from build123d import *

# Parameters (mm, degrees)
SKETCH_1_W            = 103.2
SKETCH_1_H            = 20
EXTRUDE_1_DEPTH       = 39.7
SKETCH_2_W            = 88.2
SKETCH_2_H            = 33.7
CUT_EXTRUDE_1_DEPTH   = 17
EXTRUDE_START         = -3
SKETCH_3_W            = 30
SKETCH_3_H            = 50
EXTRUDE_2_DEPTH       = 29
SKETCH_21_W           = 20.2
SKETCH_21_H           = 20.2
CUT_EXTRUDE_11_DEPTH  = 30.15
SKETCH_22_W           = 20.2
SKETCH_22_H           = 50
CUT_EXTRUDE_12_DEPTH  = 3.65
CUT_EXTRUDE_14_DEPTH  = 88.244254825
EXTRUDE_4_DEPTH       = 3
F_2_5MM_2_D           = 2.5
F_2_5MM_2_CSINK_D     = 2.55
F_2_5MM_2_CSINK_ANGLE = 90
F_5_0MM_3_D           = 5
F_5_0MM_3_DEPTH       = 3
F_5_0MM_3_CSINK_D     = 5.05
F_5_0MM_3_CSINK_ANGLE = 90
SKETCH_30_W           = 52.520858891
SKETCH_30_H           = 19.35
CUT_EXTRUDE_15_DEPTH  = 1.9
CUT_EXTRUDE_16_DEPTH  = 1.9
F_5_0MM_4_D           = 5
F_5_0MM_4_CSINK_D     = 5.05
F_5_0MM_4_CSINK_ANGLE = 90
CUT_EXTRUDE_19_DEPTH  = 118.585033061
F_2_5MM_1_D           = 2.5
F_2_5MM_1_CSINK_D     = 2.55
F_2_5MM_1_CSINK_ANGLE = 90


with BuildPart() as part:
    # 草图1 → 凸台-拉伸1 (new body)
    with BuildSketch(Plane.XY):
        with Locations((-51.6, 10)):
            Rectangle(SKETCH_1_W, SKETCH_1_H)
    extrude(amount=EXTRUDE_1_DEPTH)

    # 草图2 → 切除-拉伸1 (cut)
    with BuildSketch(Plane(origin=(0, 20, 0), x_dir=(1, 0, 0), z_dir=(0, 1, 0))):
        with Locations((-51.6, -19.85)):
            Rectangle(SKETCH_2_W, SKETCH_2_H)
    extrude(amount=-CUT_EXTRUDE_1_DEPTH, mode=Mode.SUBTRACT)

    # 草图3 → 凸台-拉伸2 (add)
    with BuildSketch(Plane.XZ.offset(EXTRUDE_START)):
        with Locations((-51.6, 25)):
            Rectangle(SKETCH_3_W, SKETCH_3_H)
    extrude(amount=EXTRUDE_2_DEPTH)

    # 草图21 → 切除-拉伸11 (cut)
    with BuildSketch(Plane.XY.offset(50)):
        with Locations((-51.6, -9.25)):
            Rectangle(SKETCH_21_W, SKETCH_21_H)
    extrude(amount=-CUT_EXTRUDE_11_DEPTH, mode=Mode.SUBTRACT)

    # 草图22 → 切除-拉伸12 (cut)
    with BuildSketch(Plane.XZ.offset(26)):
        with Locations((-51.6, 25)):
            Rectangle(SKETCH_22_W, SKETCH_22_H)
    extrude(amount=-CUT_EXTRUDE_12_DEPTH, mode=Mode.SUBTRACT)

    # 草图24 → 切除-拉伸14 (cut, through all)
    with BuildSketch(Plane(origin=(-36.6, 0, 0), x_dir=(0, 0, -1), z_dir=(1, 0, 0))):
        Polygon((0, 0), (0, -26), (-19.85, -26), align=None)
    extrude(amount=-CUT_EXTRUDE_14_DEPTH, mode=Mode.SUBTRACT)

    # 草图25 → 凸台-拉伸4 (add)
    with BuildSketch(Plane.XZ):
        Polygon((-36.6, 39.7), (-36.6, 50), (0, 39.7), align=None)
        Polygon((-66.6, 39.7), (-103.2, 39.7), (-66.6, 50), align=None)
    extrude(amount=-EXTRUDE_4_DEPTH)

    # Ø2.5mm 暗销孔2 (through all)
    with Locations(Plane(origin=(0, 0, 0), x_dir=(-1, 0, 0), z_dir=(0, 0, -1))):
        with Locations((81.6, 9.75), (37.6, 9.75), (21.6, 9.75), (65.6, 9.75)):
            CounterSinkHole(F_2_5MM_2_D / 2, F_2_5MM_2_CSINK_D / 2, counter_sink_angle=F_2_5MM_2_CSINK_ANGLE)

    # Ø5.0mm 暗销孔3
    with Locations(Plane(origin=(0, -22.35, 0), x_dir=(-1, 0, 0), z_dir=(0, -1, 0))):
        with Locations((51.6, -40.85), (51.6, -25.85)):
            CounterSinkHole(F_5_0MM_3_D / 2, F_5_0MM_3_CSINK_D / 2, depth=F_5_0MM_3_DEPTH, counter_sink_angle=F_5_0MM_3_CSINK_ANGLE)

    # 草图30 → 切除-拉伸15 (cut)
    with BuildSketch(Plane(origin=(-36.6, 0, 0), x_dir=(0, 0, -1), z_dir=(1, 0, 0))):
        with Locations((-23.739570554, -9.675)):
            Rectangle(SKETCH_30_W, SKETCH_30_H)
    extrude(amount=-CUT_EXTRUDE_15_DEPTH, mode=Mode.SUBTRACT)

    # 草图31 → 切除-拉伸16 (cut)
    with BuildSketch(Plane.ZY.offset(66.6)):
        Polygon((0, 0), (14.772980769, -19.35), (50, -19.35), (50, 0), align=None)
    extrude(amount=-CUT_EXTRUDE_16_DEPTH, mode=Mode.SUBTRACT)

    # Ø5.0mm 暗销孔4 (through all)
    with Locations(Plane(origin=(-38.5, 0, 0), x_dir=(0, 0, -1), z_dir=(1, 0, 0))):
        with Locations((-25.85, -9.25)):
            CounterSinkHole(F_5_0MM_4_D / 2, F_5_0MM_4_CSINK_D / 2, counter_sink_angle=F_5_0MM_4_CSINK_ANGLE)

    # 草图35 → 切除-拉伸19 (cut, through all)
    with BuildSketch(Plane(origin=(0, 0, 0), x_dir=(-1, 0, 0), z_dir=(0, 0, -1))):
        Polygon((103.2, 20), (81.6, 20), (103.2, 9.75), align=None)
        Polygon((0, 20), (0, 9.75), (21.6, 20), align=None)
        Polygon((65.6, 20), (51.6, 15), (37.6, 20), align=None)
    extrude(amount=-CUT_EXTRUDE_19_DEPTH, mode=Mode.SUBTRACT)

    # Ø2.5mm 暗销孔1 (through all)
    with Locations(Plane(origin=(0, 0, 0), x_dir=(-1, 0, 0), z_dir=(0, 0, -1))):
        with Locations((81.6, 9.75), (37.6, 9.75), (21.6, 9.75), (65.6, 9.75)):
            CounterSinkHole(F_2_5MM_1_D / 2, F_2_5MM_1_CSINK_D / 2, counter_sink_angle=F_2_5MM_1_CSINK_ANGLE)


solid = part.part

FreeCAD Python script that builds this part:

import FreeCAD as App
import Part
import Sketcher

doc = App.newDocument("Part")
params = doc.addObject("Spreadsheet::Sheet", "Params")
for row, (alias, value) in enumerate([
    ("sketch1_height", "20 mm"),
    ("sketch1_width", "103.2 mm"),
    ("pad1_length", "39.7 mm"),
    ("sketch2_width", "88.2 mm"),
    ("sketch2_height", "33.7 mm"),
    ("pocket1_length", "17 mm"),
    ("sketch3_width", "30 mm"),
    ("sketch3_height", "50 mm"),
    ("pad2_length", "29 mm"),
    ("sketch4_width", "20.2 mm"),
    ("pocket2_length", "30.15 mm"),
    ("sketch5_height", "50 mm"),
    ("sketch5_width", "20.2 mm"),
    ("pocket3_length", "3.65 mm"),
    ("sketch6_width", "26 mm"),
    ("sketch6_height", "19.85 mm"),
    ("sketch7_width", "36.6 mm"),
    ("sketch7_height", "10.3 mm"),
    ("pad3_length", "3 mm"),
    ("sketch8_diameter", "2.5 mm"),
    ("hole_diameter", "2.5 mm"),
    ("hole_csink_diameter", "2.55 mm"),
    ("sketch9_diameter", "5 mm"),
    ("hole2_diameter", "5 mm"),
    ("hole2_depth", "3 mm"),
    ("hole2_csink_diameter", "5.05 mm"),
    ("sketch10_width", "19.35 mm"),
    ("pocket5_length", "1.9 mm"),
    ("sketch11_height", "50 mm"),
    ("sketch11_width", "19.35 mm"),
    ("pocket6_length", "1.9 mm"),
    ("sketch12_diameter", "5 mm"),
    ("hole3_diameter", "5 mm"),
    ("hole3_csink_diameter", "5.05 mm"),
    ("sketch13_width", "28 mm"),
    ("sketch13_width2", "21.6 mm"),
    ("sketch13_height", "10.25 mm"),
    ("sketch14_diameter", "2.5 mm"),
    ("hole4_diameter", "2.5 mm"),
    ("hole4_csink_diameter", "2.55 mm"),
], start=1):
    params.set(f"A{row}", alias)
    params.set(f"B{row}", "=" + value)
    params.setAlias(f"B{row}", alias)

body = doc.addObject("PartDesign::Body", "Body")

sketch1 = body.newObject("Sketcher::SketchObject", "Sketch")
sketch1.AttachmentSupport = (doc.getObject("XY_Plane"), [""])
sketch1.MapMode = "FlatFace"
sketch1.addGeometry(Part.LineSegment(App.Vector(-103.2, 20, 0), App.Vector(-103.2, 0, 0)), False)
sketch1.addGeometry(Part.LineSegment(App.Vector(-103.2, 0, 0), App.Vector(0, 0, 0)), False)
sketch1.addGeometry(Part.LineSegment(App.Vector(0, 0, 0), App.Vector(0, 20, 0)), False)
sketch1.addGeometry(Part.LineSegment(App.Vector(0, 20, 0), App.Vector(-103.2, 20, 0)), False)
sketch1.addConstraint(Sketcher.Constraint("Coincident", 0, 2, 1, 1))
sketch1.addConstraint(Sketcher.Constraint("Coincident", 1, 2, 2, 1))
sketch1.addConstraint(Sketcher.Constraint("Coincident", 2, 2, 3, 1))
sketch1.addConstraint(Sketcher.Constraint("Coincident", 3, 2, 0, 1))
sketch1.addConstraint(Sketcher.Constraint("Vertical", 0))
sketch1.addConstraint(Sketcher.Constraint("Horizontal", 1))
sketch1.addConstraint(Sketcher.Constraint("Vertical", 2))
sketch1.addConstraint(Sketcher.Constraint("Horizontal", 3))
sketch1.addConstraint(Sketcher.Constraint("Coincident", 1, 2, -1, 1))
sketch1.addConstraint(Sketcher.Constraint("DistanceY", 0, 2, 0, 1, 20.0))
sketch1.addConstraint(Sketcher.Constraint("DistanceX", 1, 1, 1, 2, 103.2))
sketch1.setExpression("Constraints[9]", "Params.sketch1_height")
sketch1.setExpression("Constraints[10]", "Params.sketch1_width")
pad1 = body.newObject("PartDesign::Pad", "Pad")
pad1.Profile = sketch1
pad1.setExpression("Length", "Params.pad1_length")

sketch2 = body.newObject("Sketcher::SketchObject", "Sketch001")
sketch2.AttachmentSupport = (doc.getObject("XZ_Plane"), [""])
sketch2.MapMode = "FlatFace"
sketch2.AttachmentOffset = App.Placement(App.Vector(0, 0, -20), App.Rotation())
sketch2.addGeometry(Part.LineSegment(App.Vector(-95.7, 3, 0), App.Vector(-95.7, 36.7, 0)), False)
sketch2.addGeometry(Part.LineSegment(App.Vector(-95.7, 36.7, 0), App.Vector(-7.5, 36.7, 0)), False)
sketch2.addGeometry(Part.LineSegment(App.Vector(-7.5, 36.7, 0), App.Vector(-7.5, 3, 0)), False)
sketch2.addGeometry(Part.LineSegment(App.Vector(-7.5, 3, 0), App.Vector(-95.7, 3, 0)), False)
sketch2.addConstraint(Sketcher.Constraint("Coincident", 0, 2, 1, 1))
sketch2.addConstraint(Sketcher.Constraint("Coincident", 1, 2, 2, 1))
sketch2.addConstraint(Sketcher.Constraint("Coincident", 2, 2, 3, 1))
sketch2.addConstraint(Sketcher.Constraint("Coincident", 3, 2, 0, 1))
sketch2.addConstraint(Sketcher.Constraint("Vertical", 0))
sketch2.addConstraint(Sketcher.Constraint("Horizontal", 1))
sketch2.addConstraint(Sketcher.Constraint("Vertical", 2))
sketch2.addConstraint(Sketcher.Constraint("Horizontal", 3))
sketch2.addConstraint(Sketcher.Constraint("DistanceX", 1, 1, 1, 2, 88.2))
sketch2.addConstraint(Sketcher.Constraint("DistanceY", 0, 1, 0, 2, 33.7))
sketch2.addConstraint(Sketcher.Constraint("DistanceY", -1, 1, 2, 2, 3.0))
sketch2.addConstraint(Sketcher.Constraint("DistanceX", 0, 2, -1, 1, 95.7))
sketch2.setExpression("Constraints[8]", "Params.sketch2_width")
sketch2.setExpression("Constraints[9]", "Params.sketch2_height")
pocket1 = body.newObject("PartDesign::Pocket", "Pocket")
pocket1.Profile = sketch2
pocket1.setExpression("Length", "Params.pocket1_length")
pocket1.Reversed = True

sketch3 = body.newObject("Sketcher::SketchObject", "Sketch002")
sketch3.AttachmentSupport = (doc.getObject("XZ_Plane"), [""])
sketch3.MapMode = "FlatFace"
sketch3.AttachmentOffset = App.Placement(App.Vector(0, 0, -3), App.Rotation())
sketch3.addGeometry(Part.LineSegment(App.Vector(-66.6, 50, 0), App.Vector(-66.6, 0, 0)), False)
sketch3.addGeometry(Part.LineSegment(App.Vector(-66.6, 0, 0), App.Vector(-36.6, 0, 0)), False)
sketch3.addGeometry(Part.LineSegment(App.Vector(-36.6, 0, 0), App.Vector(-36.6, 50, 0)), False)
sketch3.addGeometry(Part.LineSegment(App.Vector(-36.6, 50, 0), App.Vector(-66.6, 50, 0)), False)
sketch3.addConstraint(Sketcher.Constraint("Coincident", 0, 2, 1, 1))
sketch3.addConstraint(Sketcher.Constraint("Coincident", 1, 2, 2, 1))
sketch3.addConstraint(Sketcher.Constraint("Coincident", 2, 2, 3, 1))
sketch3.addConstraint(Sketcher.Constraint("Coincident", 3, 2, 0, 1))
sketch3.addConstraint(Sketcher.Constraint("Vertical", 0))
sketch3.addConstraint(Sketcher.Constraint("Horizontal", 1))
sketch3.addConstraint(Sketcher.Constraint("Vertical", 2))
sketch3.addConstraint(Sketcher.Constraint("Horizontal", 3))
sketch3.addConstraint(Sketcher.Constraint("PointOnObject", 0, 2, -1))
sketch3.addConstraint(Sketcher.Constraint("DistanceX", 1, 1, 1, 2, 30.0))
sketch3.addConstraint(Sketcher.Constraint("DistanceY", 0, 2, 0, 1, 50.0))
sketch3.addConstraint(Sketcher.Constraint("DistanceX", 0, 2, -1, 1, 66.6))
sketch3.setExpression("Constraints[9]", "Params.sketch3_width")
sketch3.setExpression("Constraints[10]", "Params.sketch3_height")
pad2 = body.newObject("PartDesign::Pad", "Pad001")
pad2.Profile = sketch3
pad2.setExpression("Length", "Params.pad2_length")

sketch4 = body.newObject("Sketcher::SketchObject", "Sketch003")
sketch4.AttachmentSupport = (doc.getObject("XY_Plane"), [""])
sketch4.MapMode = "FlatFace"
sketch4.AttachmentOffset = App.Placement(App.Vector(0, 0, 50), App.Rotation())
sketch4.addGeometry(Part.LineSegment(App.Vector(-61.7, 0.85, 0), App.Vector(-61.7, -19.35, 0)), False)
sketch4.addGeometry(Part.LineSegment(App.Vector(-61.7, -19.35, 0), App.Vector(-41.5, -19.35, 0)), False)
sketch4.addGeometry(Part.LineSegment(App.Vector(-41.5, -19.35, 0), App.Vector(-41.5, 0.85, 0)), False)
sketch4.addGeometry(Part.LineSegment(App.Vector(-41.5, 0.85, 0), App.Vector(-61.7, 0.85, 0)), False)
sketch4.addConstraint(Sketcher.Constraint("Coincident", 0, 2, 1, 1))
sketch4.addConstraint(Sketcher.Constraint("Coincident", 1, 2, 2, 1))
sketch4.addConstraint(Sketcher.Constraint("Coincident", 2, 2, 3, 1))
sketch4.addConstraint(Sketcher.Constraint("Coincident", 3, 2, 0, 1))
sketch4.addConstraint(Sketcher.Constraint("Vertical", 0))
sketch4.addConstraint(Sketcher.Constraint("Horizontal", 1))
sketch4.addConstraint(Sketcher.Constraint("Vertical", 2))
sketch4.addConstraint(Sketcher.Constraint("Horizontal", 3))
sketch4.addConstraint(Sketcher.Constraint("Equal", 3, 0))
sketch4.addConstraint(Sketcher.Constraint("DistanceX", 1, 1, 1, 2, 20.2))
sketch4.addConstraint(Sketcher.Constraint("DistanceX", 0, 2, -1, 1, 61.7))
sketch4.addConstraint(Sketcher.Constraint("DistanceY", 0, 2, -1, 1, 19.35))
sketch4.setExpression("Constraints[9]", "Params.sketch4_width")
pocket2 = body.newObject("PartDesign::Pocket", "Pocket001")
pocket2.Profile = sketch4
pocket2.setExpression("Length", "Params.pocket2_length")

sketch5 = body.newObject("Sketcher::SketchObject", "Sketch004")
sketch5.AttachmentSupport = (doc.getObject("XZ_Plane"), [""])
sketch5.MapMode = "FlatFace"
sketch5.AttachmentOffset = App.Placement(App.Vector(0, 0, 26), App.Rotation())
sketch5.addGeometry(Part.LineSegment(App.Vector(-61.7, 50, 0), App.Vector(-61.7, 0, 0)), False)
sketch5.addGeometry(Part.LineSegment(App.Vector(-61.7, 0, 0), App.Vector(-41.5, 0, 0)), False)
sketch5.addGeometry(Part.LineSegment(App.Vector(-41.5, 0, 0), App.Vector(-41.5, 50, 0)), False)
sketch5.addGeometry(Part.LineSegment(App.Vector(-41.5, 50, 0), App.Vector(-61.7, 50, 0)), False)
sketch5.addConstraint(Sketcher.Constraint("Coincident", 0, 2, 1, 1))
sketch5.addConstraint(Sketcher.Constraint("Coincident", 1, 2, 2, 1))
sketch5.addConstraint(Sketcher.Constraint("Coincident", 2, 2, 3, 1))
sketch5.addConstraint(Sketcher.Constraint("Coincident", 3, 2, 0, 1))
sketch5.addConstraint(Sketcher.Constraint("Vertical", 0))
sketch5.addConstraint(Sketcher.Constraint("Horizontal", 1))
sketch5.addConstraint(Sketcher.Constraint("Vertical", 2))
sketch5.addConstraint(Sketcher.Constraint("Horizontal", 3))
sketch5.addConstraint(Sketcher.Constraint("PointOnObject", 0, 2, -1))
sketch5.addConstraint(Sketcher.Constraint("DistanceY", 0, 2, 0, 1, 50.0))
sketch5.addConstraint(Sketcher.Constraint("DistanceX", 1, 1, 1, 2, 20.2))
sketch5.addConstraint(Sketcher.Constraint("DistanceX", 0, 2, -1, 1, 61.7))
sketch5.setExpression("Constraints[9]", "Params.sketch5_height")
sketch5.setExpression("Constraints[10]", "Params.sketch5_width")
pocket3 = body.newObject("PartDesign::Pocket", "Pocket002")
pocket3.Profile = sketch5
pocket3.setExpression("Length", "Params.pocket3_length")

sketch6 = body.newObject("Sketcher::SketchObject", "Sketch005")
sketch6.AttachmentSupport = (doc.getObject("YZ_Plane"), [""])
sketch6.MapMode = "FlatFace"
sketch6.AttachmentOffset = App.Placement(App.Vector(0, 0, -36.6), App.Rotation())
sketch6.addGeometry(Part.LineSegment(App.Vector(-26, 0, 0), App.Vector(0, 0, 0)), False)
sketch6.addGeometry(Part.LineSegment(App.Vector(0, 0, 0), App.Vector(-26, 19.85, 0)), False)
sketch6.addGeometry(Part.LineSegment(App.Vector(-26, 19.85, 0), App.Vector(-26, 0, 0)), False)
sketch6.addConstraint(Sketcher.Constraint("Coincident", 0, 2, 1, 1))
sketch6.addConstraint(Sketcher.Constraint("Coincident", 1, 2, 2, 1))
sketch6.addConstraint(Sketcher.Constraint("Coincident", 2, 2, 0, 1))
sketch6.addConstraint(Sketcher.Constraint("Horizontal", 0))
sketch6.addConstraint(Sketcher.Constraint("Vertical", 2))
sketch6.addConstraint(Sketcher.Constraint("Coincident", 0, 2, -1, 1))
sketch6.addConstraint(Sketcher.Constraint("DistanceX", 0, 1, 0, 2, 26.0))
sketch6.addConstraint(Sketcher.Constraint("DistanceY", 2, 2, 2, 1, 19.85))
sketch6.setExpression("Constraints[6]", "Params.sketch6_width")
sketch6.setExpression("Constraints[7]", "Params.sketch6_height")
pocket4 = body.newObject("PartDesign::Pocket", "Pocket003")
pocket4.Profile = sketch6
pocket4.Type = "ThroughAll"

sketch7 = body.newObject("Sketcher::SketchObject", "Sketch006")
sketch7.AttachmentSupport = (doc.getObject("XZ_Plane"), [""])
sketch7.MapMode = "FlatFace"
sketch7.addGeometry(Part.LineSegment(App.Vector(-36.6, 50, 0), App.Vector(-36.6, 39.7, 0)), False)
sketch7.addGeometry(Part.LineSegment(App.Vector(-36.6, 39.7, 0), App.Vector(0, 39.7, 0)), False)
sketch7.addGeometry(Part.LineSegment(App.Vector(0, 39.7, 0), App.Vector(-36.6, 50, 0)), False)
sketch7.addGeometry(Part.LineSegment(App.Vector(-103.2, 39.7, 0), App.Vector(-66.6, 39.7, 0)), False)
sketch7.addGeometry(Part.LineSegment(App.Vector(-66.6, 39.7, 0), App.Vector(-66.6, 50, 0)), False)
sketch7.addGeometry(Part.LineSegment(App.Vector(-66.6, 50, 0), App.Vector(-103.2, 39.7, 0)), False)
sketch7.addConstraint(Sketcher.Constraint("Coincident", 0, 2, 1, 1))
sketch7.addConstraint(Sketcher.Constraint("Coincident", 1, 2, 2, 1))
sketch7.addConstraint(Sketcher.Constraint("Coincident", 2, 2, 0, 1))
sketch7.addConstraint(Sketcher.Constraint("Coincident", 3, 2, 4, 1))
sketch7.addConstraint(Sketcher.Constraint("Coincident", 4, 2, 5, 1))
sketch7.addConstraint(Sketcher.Constraint("Coincident", 5, 2, 3, 1))
sketch7.addConstraint(Sketcher.Constraint("Vertical", 0))
sketch7.addConstraint(Sketcher.Constraint("Horizontal", 1))
sketch7.addConstraint(Sketcher.Constraint("Horizontal", 3))
sketch7.addConstraint(Sketcher.Constraint("Vertical", 4))
sketch7.addConstraint(Sketcher.Constraint("PointOnObject", 1, 2, -2))
sketch7.addConstraint(Sketcher.Constraint("Horizontal", 1, 2, 3, 2))
sketch7.addConstraint(Sketcher.Constraint("Horizontal", 2, 2, 4, 2))
sketch7.addConstraint(Sketcher.Constraint("Equal", 1, 3))
sketch7.addConstraint(Sketcher.Constraint("DistanceX", 1, 1, 1, 2, 36.6))
sketch7.addConstraint(Sketcher.Constraint("DistanceY", 0, 2, 0, 1, 10.3))
sketch7.addConstraint(Sketcher.Constraint("DistanceY", -1, 1, 2, 2, 50.0))
sketch7.addConstraint(Sketcher.Constraint("DistanceX", 3, 2, 0, 2, 30.0))
sketch7.setExpression("Constraints[14]", "Params.sketch7_width")
sketch7.setExpression("Constraints[15]", "Params.sketch7_height")
pad3 = body.newObject("PartDesign::Pad", "Pad002")
pad3.Profile = sketch7
pad3.setExpression("Length", "Params.pad3_length")
pad3.Reversed = True

sketch8 = body.newObject("Sketcher::SketchObject", "Sketch007")
sketch8.AttachmentSupport = (doc.getObject("XY_Plane"), [""])
sketch8.MapMode = "FlatFace"
sketch8.addGeometry(Part.Circle(App.Vector(-81.6, 9.75, 0), App.Vector(0, 0, 1), 1.25), False)
sketch8.addGeometry(Part.Circle(App.Vector(-37.6, 9.75, 0), App.Vector(0, 0, 1), 1.25), False)
sketch8.addGeometry(Part.Circle(App.Vector(-21.6, 9.75, 0), App.Vector(0, 0, 1), 1.25), False)
sketch8.addGeometry(Part.Circle(App.Vector(-65.6, 9.75, 0), App.Vector(0, 0, 1), 1.25), False)
sketch8.addConstraint(Sketcher.Constraint("Equal", 0, 1))
sketch8.addConstraint(Sketcher.Constraint("Equal", 1, 2))
sketch8.addConstraint(Sketcher.Constraint("Equal", 2, 3))
sketch8.addConstraint(Sketcher.Constraint("Horizontal", 0, 3, 1, 3))
sketch8.addConstraint(Sketcher.Constraint("Horizontal", 1, 3, 2, 3))
sketch8.addConstraint(Sketcher.Constraint("Horizontal", 2, 3, 3, 3))
sketch8.addConstraint(Sketcher.Constraint("Diameter", 0, 2.5))
sketch8.addConstraint(Sketcher.Constraint("DistanceX", 0, 3, 1, 3, 44.0))
sketch8.addConstraint(Sketcher.Constraint("DistanceX", 1, 3, 2, 3, 16.0))
sketch8.addConstraint(Sketcher.Constraint("DistanceX", 0, 3, 3, 3, 16.0))
sketch8.addConstraint(Sketcher.Constraint("DistanceX", 0, 3, -1, 1, 81.6))
sketch8.addConstraint(Sketcher.Constraint("DistanceY", -1, 1, 0, 3, 9.75))
sketch8.setExpression("Constraints[6]", "Params.sketch8_diameter")
doc.recompute()
hole = body.newObject("PartDesign::Hole", "Hole")
hole.Profile = sketch8
hole.ThreadType = "None"
hole.setExpression("Diameter", "Params.hole_diameter")
hole.DepthType = "ThroughAll"
hole.HoleCutType = "Countersink"
hole.setExpression("HoleCutDiameter", "Params.hole_csink_diameter")
hole.HoleCutCountersinkAngle = 90
hole.Reversed = True

sketch9 = body.newObject("Sketcher::SketchObject", "Sketch008")
sketch9.AttachmentSupport = (doc.getObject("XZ_Plane"), [""])
sketch9.MapMode = "FlatFace"
sketch9.AttachmentOffset = App.Placement(App.Vector(0, 0, 22.35), App.Rotation())
sketch9.addGeometry(Part.Circle(App.Vector(-51.6, 40.85, 0), App.Vector(0, 0, 1), 2.5), False)
sketch9.addGeometry(Part.Circle(App.Vector(-51.6, 25.85, 0), App.Vector(0, 0, 1), 2.5), False)
sketch9.addConstraint(Sketcher.Constraint("Equal", 0, 1))
sketch9.addConstraint(Sketcher.Constraint("Vertical", 0, 3, 1, 3))
sketch9.addConstraint(Sketcher.Constraint("Diameter", 0, 5.0))
sketch9.addConstraint(Sketcher.Constraint("DistanceY", 1, 3, 0, 3, 15.0))
sketch9.addConstraint(Sketcher.Constraint("DistanceX", 0, 3, -1, 1, 51.6))
sketch9.addConstraint(Sketcher.Constraint("DistanceY", -1, 1, 0, 3, 40.85))
sketch9.setExpression("Constraints[2]", "Params.sketch9_diameter")
doc.recompute()
hole2 = body.newObject("PartDesign::Hole", "Hole001")
hole2.Profile = sketch9
hole2.ThreadType = "None"
hole2.setExpression("Diameter", "Params.hole2_diameter")
hole2.DepthType = "Dimension"
hole2.setExpression("Depth", "Params.hole2_depth")
hole2.DrillPoint = "Flat"
hole2.HoleCutType = "Countersink"
hole2.setExpression("HoleCutDiameter", "Params.hole2_csink_diameter")
hole2.HoleCutCountersinkAngle = 90

sketch10 = body.newObject("Sketcher::SketchObject", "Sketch009")
sketch10.AttachmentSupport = (doc.getObject("YZ_Plane"), [""])
sketch10.MapMode = "FlatFace"
sketch10.AttachmentOffset = App.Placement(App.Vector(0, 0, -36.6), App.Rotation())
sketch10.addGeometry(Part.LineSegment(App.Vector(0, 50, 0), App.Vector(-19.35, 50, 0)), False)
sketch10.addGeometry(Part.LineSegment(App.Vector(-19.35, 50, 0), App.Vector(-19.35, -2.520859, 0)), False)
sketch10.addGeometry(Part.LineSegment(App.Vector(-19.35, -2.520859, 0), App.Vector(0, -2.520859, 0)), False)
sketch10.addGeometry(Part.LineSegment(App.Vector(0, -2.520859, 0), App.Vector(0, 50, 0)), False)
sketch10.addConstraint(Sketcher.Constraint("Coincident", 0, 2, 1, 1))
sketch10.addConstraint(Sketcher.Constraint("Coincident", 1, 2, 2, 1))
sketch10.addConstraint(Sketcher.Constraint("Coincident", 2, 2, 3, 1))
sketch10.addConstraint(Sketcher.Constraint("Coincident", 3, 2, 0, 1))
sketch10.addConstraint(Sketcher.Constraint("Horizontal", 0))
sketch10.addConstraint(Sketcher.Constraint("Vertical", 1))
sketch10.addConstraint(Sketcher.Constraint("Horizontal", 2))
sketch10.addConstraint(Sketcher.Constraint("Vertical", 3))
sketch10.addConstraint(Sketcher.Constraint("PointOnObject", 2, 2, -2))
sketch10.addConstraint(Sketcher.Constraint("DistanceY", -1, 1, 0, 2, 50.0))
sketch10.addConstraint(Sketcher.Constraint("DistanceX", 0, 2, 0, 1, 19.35))
sketch10.addConstraint(Sketcher.Constraint("DistanceY", 1, 2, 1, 1, 52.520859))
sketch10.setExpression("Constraints[10]", "Params.sketch10_width")
pocket5 = body.newObject("PartDesign::Pocket", "Pocket004")
pocket5.Profile = sketch10
pocket5.setExpression("Length", "Params.pocket5_length")

sketch11 = body.newObject("Sketcher::SketchObject", "Sketch010")
sketch11.AttachmentSupport = (doc.getObject("YZ_Plane"), [""])
sketch11.MapMode = "FlatFace"
sketch11.AttachmentOffset = App.Placement(App.Vector(0, 0, -66.6), App.Rotation())
sketch11.addGeometry(Part.LineSegment(App.Vector(0, 0, 0), App.Vector(-19.35, 14.772981, 0)), False)
sketch11.addGeometry(Part.LineSegment(App.Vector(-19.35, 14.772981, 0), App.Vector(-19.35, 50, 0)), False)
sketch11.addGeometry(Part.LineSegment(App.Vector(-19.35, 50, 0), App.Vector(0, 50, 0)), False)
sketch11.addGeometry(Part.LineSegment(App.Vector(0, 50, 0), App.Vector(0, 0, 0)), False)
sketch11.addConstraint(Sketcher.Constraint("Coincident", 0, 2, 1, 1))
sketch11.addConstraint(Sketcher.Constraint("Coincident", 1, 2, 2, 1))
sketch11.addConstraint(Sketcher.Constraint("Coincident", 2, 2, 3, 1))
sketch11.addConstraint(Sketcher.Constraint("Coincident", 3, 2, 0, 1))
sketch11.addConstraint(Sketcher.Constraint("Vertical", 1))
sketch11.addConstraint(Sketcher.Constraint("Horizontal", 2))
sketch11.addConstraint(Sketcher.Constraint("Vertical", 3))
sketch11.addConstraint(Sketcher.Constraint("Coincident", 3, 2, -1, 1))
sketch11.addConstraint(Sketcher.Constraint("DistanceY", 3, 2, 3, 1, 50.0))
sketch11.addConstraint(Sketcher.Constraint("DistanceX", 2, 1, 2, 2, 19.35))
sketch11.addConstraint(Sketcher.Constraint("DistanceY", 1, 1, 1, 2, 35.227019))
sketch11.setExpression("Constraints[8]", "Params.sketch11_height")
sketch11.setExpression("Constraints[9]", "Params.sketch11_width")
pocket6 = body.newObject("PartDesign::Pocket", "Pocket005")
pocket6.Profile = sketch11
pocket6.setExpression("Length", "Params.pocket6_length")
pocket6.Reversed = True

sketch12 = body.newObject("Sketcher::SketchObject", "Sketch011")
sketch12.AttachmentSupport = (doc.getObject("YZ_Plane"), [""])
sketch12.MapMode = "FlatFace"
sketch12.AttachmentOffset = App.Placement(App.Vector(0, 0, -38.5), App.Rotation())
sketch12.addGeometry(Part.Circle(App.Vector(-9.25, 25.85, 0), App.Vector(0, 0, 1), 2.5), False)
sketch12.addConstraint(Sketcher.Constraint("Diameter", 0, 5.0))
sketch12.addConstraint(Sketcher.Constraint("DistanceX", 0, 3, -1, 1, 9.25))
sketch12.addConstraint(Sketcher.Constraint("DistanceY", -1, 1, 0, 3, 25.85))
sketch12.setExpression("Constraints[0]", "Params.sketch12_diameter")
doc.recompute()
hole3 = body.newObject("PartDesign::Hole", "Hole002")
hole3.Profile = sketch12
hole3.ThreadType = "None"
hole3.setExpression("Diameter", "Params.hole3_diameter")
hole3.DepthType = "ThroughAll"
hole3.HoleCutType = "Countersink"
hole3.setExpression("HoleCutDiameter", "Params.hole3_csink_diameter")
hole3.HoleCutCountersinkAngle = 90

sketch13 = body.newObject("Sketcher::SketchObject", "Sketch012")
sketch13.AttachmentSupport = (doc.getObject("XY_Plane"), [""])
sketch13.MapMode = "FlatFace"
sketch13.addGeometry(Part.LineSegment(App.Vector(-103.2, 20, 0), App.Vector(-81.6, 20, 0)), False)
sketch13.addGeometry(Part.LineSegment(App.Vector(-81.6, 20, 0), App.Vector(-103.2, 9.75, 0)), False)
sketch13.addGeometry(Part.LineSegment(App.Vector(-103.2, 9.75, 0), App.Vector(-103.2, 20, 0)), False)
sketch13.addGeometry(Part.LineSegment(App.Vector(0, 20, 0), App.Vector(0, 9.75, 0)), False)
sketch13.addGeometry(Part.LineSegment(App.Vector(0, 9.75, 0), App.Vector(-21.6, 20, 0)), False)
sketch13.addGeometry(Part.LineSegment(App.Vector(-21.6, 20, 0), App.Vector(0, 20, 0)), False)
sketch13.addGeometry(Part.LineSegment(App.Vector(-51.6, 15, 0), App.Vector(-65.6, 20, 0)), False)
sketch13.addGeometry(Part.LineSegment(App.Vector(-65.6, 20, 0), App.Vector(-37.6, 20, 0)), False)
sketch13.addGeometry(Part.LineSegment(App.Vector(-37.6, 20, 0), App.Vector(-51.6, 15, 0)), False)
sketch13.addConstraint(Sketcher.Constraint("Coincident", 0, 2, 1, 1))
sketch13.addConstraint(Sketcher.Constraint("Coincident", 1, 2, 2, 1))
sketch13.addConstraint(Sketcher.Constraint("Coincident", 2, 2, 0, 1))
sketch13.addConstraint(Sketcher.Constraint("Coincident", 3, 2, 4, 1))
sketch13.addConstraint(Sketcher.Constraint("Coincident", 4, 2, 5, 1))
sketch13.addConstraint(Sketcher.Constraint("Coincident", 5, 2, 3, 1))
sketch13.addConstraint(Sketcher.Constraint("Coincident", 6, 2, 7, 1))
sketch13.addConstraint(Sketcher.Constraint("Coincident", 7, 2, 8, 1))
sketch13.addConstraint(Sketcher.Constraint("Coincident", 8, 2, 6, 1))
sketch13.addConstraint(Sketcher.Constraint("Horizontal", 0))
sketch13.addConstraint(Sketcher.Constraint("Vertical", 2))
sketch13.addConstraint(Sketcher.Constraint("Vertical", 3))
sketch13.addConstraint(Sketcher.Constraint("Horizontal", 5))
sketch13.addConstraint(Sketcher.Constraint("Horizontal", 7))
sketch13.addConstraint(Sketcher.Constraint("PointOnObject", 3, 2, -2))
sketch13.addConstraint(Sketcher.Constraint("Horizontal", 1, 2, 3, 2))
sketch13.addConstraint(Sketcher.Constraint("Horizontal", 2, 2, 4, 2))
sketch13.addConstraint(Sketcher.Constraint("Horizontal", 5, 2, 6, 2))
sketch13.addConstraint(Sketcher.Constraint("Equal", 0, 5))
sketch13.addConstraint(Sketcher.Constraint("Equal", 6, 8))
sketch13.addConstraint(Sketcher.Constraint("DistanceX", 7, 1, 7, 2, 28.0))
sketch13.addConstraint(Sketcher.Constraint("DistanceX", 0, 1, 0, 2, 21.6))
sketch13.addConstraint(Sketcher.Constraint("DistanceY", -1, 1, 0, 2, 20.0))
sketch13.addConstraint(Sketcher.Constraint("DistanceY", -1, 1, 8, 2, 15.0))
sketch13.addConstraint(Sketcher.Constraint("DistanceX", 0, 2, 4, 2, 60.0))
sketch13.addConstraint(Sketcher.Constraint("DistanceX", 0, 2, 6, 2, 16.0))
sketch13.addConstraint(Sketcher.Constraint("DistanceY", 2, 1, 2, 2, 10.25))
sketch13.setExpression("Constraints[20]", "Params.sketch13_width")
sketch13.setExpression("Constraints[21]", "Params.sketch13_width2")
sketch13.setExpression("Constraints[26]", "Params.sketch13_height")
pocket7 = body.newObject("PartDesign::Pocket", "Pocket006")
pocket7.Profile = sketch13
pocket7.Type = "ThroughAll"
pocket7.Reversed = True

sketch14 = body.newObject("Sketcher::SketchObject", "Sketch013")
sketch14.AttachmentSupport = (doc.getObject("XY_Plane"), [""])
sketch14.MapMode = "FlatFace"
sketch14.addGeometry(Part.Circle(App.Vector(-81.6, 9.75, 0), App.Vector(0, 0, 1), 1.25), False)
sketch14.addGeometry(Part.Circle(App.Vector(-37.6, 9.75, 0), App.Vector(0, 0, 1), 1.25), False)
sketch14.addGeometry(Part.Circle(App.Vector(-21.6, 9.75, 0), App.Vector(0, 0, 1), 1.25), False)
sketch14.addGeometry(Part.Circle(App.Vector(-65.6, 9.75, 0), App.Vector(0, 0, 1), 1.25), False)
sketch14.addConstraint(Sketcher.Constraint("Equal", 0, 1))
sketch14.addConstraint(Sketcher.Constraint("Equal", 1, 2))
sketch14.addConstraint(Sketcher.Constraint("Equal", 2, 3))
sketch14.addConstraint(Sketcher.Constraint("Horizontal", 0, 3, 1, 3))
sketch14.addConstraint(Sketcher.Constraint("Horizontal", 1, 3, 2, 3))
sketch14.addConstraint(Sketcher.Constraint("Horizontal", 2, 3, 3, 3))
sketch14.addConstraint(Sketcher.Constraint("Diameter", 0, 2.5))
sketch14.addConstraint(Sketcher.Constraint("DistanceX", 0, 3, 1, 3, 44.0))
sketch14.addConstraint(Sketcher.Constraint("DistanceX", 1, 3, 2, 3, 16.0))
sketch14.addConstraint(Sketcher.Constraint("DistanceX", 0, 3, 3, 3, 16.0))
sketch14.addConstraint(Sketcher.Constraint("DistanceX", 0, 3, -1, 1, 81.6))
sketch14.addConstraint(Sketcher.Constraint("DistanceY", -1, 1, 0, 3, 9.75))
sketch14.setExpression("Constraints[6]", "Params.sketch14_diameter")
doc.recompute()
hole4 = body.newObject("PartDesign::Hole", "Hole003")
hole4.Profile = sketch14
hole4.ThreadType = "None"
hole4.setExpression("Diameter", "Params.hole4_diameter")
hole4.DepthType = "ThroughAll"
hole4.HoleCutType = "Countersink"
hole4.setExpression("HoleCutDiameter", "Params.hole4_csink_diameter")
hole4.HoleCutCountersinkAngle = 90
hole4.Reversed = True

doc.recompute()
